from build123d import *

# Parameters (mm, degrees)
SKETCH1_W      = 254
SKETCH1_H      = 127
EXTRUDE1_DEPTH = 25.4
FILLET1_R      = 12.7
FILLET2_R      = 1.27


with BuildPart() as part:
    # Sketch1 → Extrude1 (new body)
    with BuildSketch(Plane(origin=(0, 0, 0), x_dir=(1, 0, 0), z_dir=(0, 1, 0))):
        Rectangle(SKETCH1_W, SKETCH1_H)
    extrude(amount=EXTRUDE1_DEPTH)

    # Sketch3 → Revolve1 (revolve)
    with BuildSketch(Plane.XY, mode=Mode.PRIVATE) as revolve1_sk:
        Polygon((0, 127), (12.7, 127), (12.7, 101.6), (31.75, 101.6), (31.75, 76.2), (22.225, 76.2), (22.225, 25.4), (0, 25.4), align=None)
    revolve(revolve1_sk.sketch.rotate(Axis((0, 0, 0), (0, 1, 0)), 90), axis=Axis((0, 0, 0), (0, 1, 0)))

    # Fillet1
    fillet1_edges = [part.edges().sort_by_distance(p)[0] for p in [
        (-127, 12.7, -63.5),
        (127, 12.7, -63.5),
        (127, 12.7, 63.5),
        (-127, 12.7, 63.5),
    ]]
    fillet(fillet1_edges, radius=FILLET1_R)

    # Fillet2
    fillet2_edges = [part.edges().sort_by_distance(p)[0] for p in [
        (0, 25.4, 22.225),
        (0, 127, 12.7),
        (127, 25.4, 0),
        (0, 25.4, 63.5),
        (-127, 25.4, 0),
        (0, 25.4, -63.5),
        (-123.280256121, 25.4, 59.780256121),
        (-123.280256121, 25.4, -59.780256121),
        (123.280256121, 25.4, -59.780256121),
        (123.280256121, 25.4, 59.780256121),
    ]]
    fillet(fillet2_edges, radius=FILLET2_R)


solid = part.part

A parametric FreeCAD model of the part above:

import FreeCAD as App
import Part
import Sketcher

V = App.Vector
Q = App.Units.Quantity


def edges_at(feature, points):
    """Names of the edges that pass closest to the given points."""
    edges = feature.Shape.Edges
    near = lambda p: min(range(len(edges)), key=lambda i: edges[i].distToShape(Part.Vertex(*p))[0])
    return sorted({f"Edge{near(p) + 1}" for p in points})


def add_polygon(sketch, points):
    """Adds a closed chain of lines whose ends are joined by coincident constraints."""
    first, n = sketch.GeometryCount, len(points)
    for a, b in zip(points, points[1:] + points[:1]):
        sketch.addGeometry(Part.LineSegment(App.Vector(*a, 0), App.Vector(*b, 0)), False)
    for i in range(n):
        sketch.addConstraint(Sketcher.Constraint("Coincident", first + i, 2, first + (i + 1) % n, 1))

doc = App.newDocument("Part")
body = doc.addObject("PartDesign::Body", "Body")

# Sketch on XZ plane
sketch1 = body.newObject("Sketcher::SketchObject", "Sketch")
sketch1.AttachmentSupport = (doc.getObject("XZ_Plane"), [""])
sketch1.MapMode = "FlatFace"
add_polygon(sketch1, [(-127, -64), (-127, 64), (127, 64), (127, -64)])  # lines 0-3
sketch1.addConstraint(Sketcher.Constraint("Vertical", 0))
sketch1.addConstraint(Sketcher.Constraint("Horizontal", 1))
sketch1.addConstraint(Sketcher.Constraint("Vertical", 2))
sketch1.addConstraint(Sketcher.Constraint("Horizontal", 3))
sketch1.addConstraint(Sketcher.Constraint("Symmetric", 0, 2, 2, 2, -1, 1))
sketch1.addConstraint(Sketcher.Constraint("DistanceX", 1, 1, 1, 2, Q("10 in")))
sketch1.addConstraint(Sketcher.Constraint("DistanceY", 0, 1, 0, 2, Q("5 in")))
pad1 = body.newObject("PartDesign::Pad", "Pad")
pad1.Profile = sketch1
pad1.Length = Q("1 in")
pad1.Reversed = True

# Sketch on XY plane
sketch2 = body.newObject("Sketcher::SketchObject", "Sketch001")
sketch2.AttachmentSupport = (doc.getObject("XY_Plane"), [""])
sketch2.MapMode = "FlatFace"
add_polygon(sketch2, [(13, 127), (0, 127), (0, 25), (22, 25), (22, 76), (32, 76), (32, 102), (13, 102)])  # lines 0-7
sketch2.addConstraint(Sketcher.Constraint("Horizontal", 0))
sketch2.addConstraint(Sketcher.Constraint("Vertical", 1))
sketch2.addConstraint(Sketcher.Constraint("Horizontal", 2))
sketch2.addConstraint(Sketcher.Constraint("Vertical", 3))
sketch2.addConstraint(Sketcher.Constraint("Horizontal", 4))
sketch2.addConstraint(Sketcher.Constraint("Vertical", 5))
sketch2.addConstraint(Sketcher.Constraint("Horizontal", 6))
sketch2.addConstraint(Sketcher.Constraint("Vertical", 7))
sketch2.addConstraint(Sketcher.Constraint("PointOnObject", 0, 2, -2))
sketch2.addConstraint(Sketcher.Constraint("Equal", 5, 7))
sketch2.addConstraint(Sketcher.Constraint("DistanceY", 1, 2, 1, 1, Q("4 in")))
sketch2.addConstraint(Sketcher.Constraint("DistanceY", 3, 1, 3, 2, Q("2 in")))
sketch2.addConstraint(Sketcher.Constraint("DistanceX", 0, 2, 0, 1, Q("0.5 in")))
sketch2.addConstraint(Sketcher.Constraint("DistanceY", -1, 1, 0, 2, Q("5 in")))
sketch2.addConstraint(Sketcher.Constraint("DistanceX", 6, 2, 6, 1, Q("0.75 in")))
sketch2.addConstraint(Sketcher.Constraint("DistanceX", 2, 1, 2, 2, Q("0.875 in")))
revolution = body.newObject("PartDesign::Revolution", "Revolution")
revolution.Profile = sketch2
revolution.ReferenceAxis = (sketch2, ["V_Axis"])
revolution.Angle = 360
doc.recompute()

fillet = body.newObject("PartDesign::Fillet", "Fillet")
fillet.Base = (revolution, edges_at(revolution, [
    (-127, 12.7, -63.5),
    (127, 12.7, -63.5),
    (127, 12.7, 63.5),
    (-127, 12.7, 63.5),
]))
fillet.Radius = Q("0.5 in")
doc.recompute()

fillet2 = body.newObject("PartDesign::Fillet", "Fillet001")
fillet2.Base = (fillet, edges_at(fillet, [
    (0, 25.4, 22.225),
    (0, 127, 12.7),
    (127, 25.4, 0),
    (0, 25.4, 63.5),
    (-127, 25.4, 0),
    (0, 25.4, -63.5),
    (-123.28, 25.4, 59.78),
    (-123.28, 25.4, -59.78),
    (123.28, 25.4, -59.78),
    (123.28, 25.4, 59.78),
]))
fillet2.Radius = Q("0.05 in")

doc.recompute()
